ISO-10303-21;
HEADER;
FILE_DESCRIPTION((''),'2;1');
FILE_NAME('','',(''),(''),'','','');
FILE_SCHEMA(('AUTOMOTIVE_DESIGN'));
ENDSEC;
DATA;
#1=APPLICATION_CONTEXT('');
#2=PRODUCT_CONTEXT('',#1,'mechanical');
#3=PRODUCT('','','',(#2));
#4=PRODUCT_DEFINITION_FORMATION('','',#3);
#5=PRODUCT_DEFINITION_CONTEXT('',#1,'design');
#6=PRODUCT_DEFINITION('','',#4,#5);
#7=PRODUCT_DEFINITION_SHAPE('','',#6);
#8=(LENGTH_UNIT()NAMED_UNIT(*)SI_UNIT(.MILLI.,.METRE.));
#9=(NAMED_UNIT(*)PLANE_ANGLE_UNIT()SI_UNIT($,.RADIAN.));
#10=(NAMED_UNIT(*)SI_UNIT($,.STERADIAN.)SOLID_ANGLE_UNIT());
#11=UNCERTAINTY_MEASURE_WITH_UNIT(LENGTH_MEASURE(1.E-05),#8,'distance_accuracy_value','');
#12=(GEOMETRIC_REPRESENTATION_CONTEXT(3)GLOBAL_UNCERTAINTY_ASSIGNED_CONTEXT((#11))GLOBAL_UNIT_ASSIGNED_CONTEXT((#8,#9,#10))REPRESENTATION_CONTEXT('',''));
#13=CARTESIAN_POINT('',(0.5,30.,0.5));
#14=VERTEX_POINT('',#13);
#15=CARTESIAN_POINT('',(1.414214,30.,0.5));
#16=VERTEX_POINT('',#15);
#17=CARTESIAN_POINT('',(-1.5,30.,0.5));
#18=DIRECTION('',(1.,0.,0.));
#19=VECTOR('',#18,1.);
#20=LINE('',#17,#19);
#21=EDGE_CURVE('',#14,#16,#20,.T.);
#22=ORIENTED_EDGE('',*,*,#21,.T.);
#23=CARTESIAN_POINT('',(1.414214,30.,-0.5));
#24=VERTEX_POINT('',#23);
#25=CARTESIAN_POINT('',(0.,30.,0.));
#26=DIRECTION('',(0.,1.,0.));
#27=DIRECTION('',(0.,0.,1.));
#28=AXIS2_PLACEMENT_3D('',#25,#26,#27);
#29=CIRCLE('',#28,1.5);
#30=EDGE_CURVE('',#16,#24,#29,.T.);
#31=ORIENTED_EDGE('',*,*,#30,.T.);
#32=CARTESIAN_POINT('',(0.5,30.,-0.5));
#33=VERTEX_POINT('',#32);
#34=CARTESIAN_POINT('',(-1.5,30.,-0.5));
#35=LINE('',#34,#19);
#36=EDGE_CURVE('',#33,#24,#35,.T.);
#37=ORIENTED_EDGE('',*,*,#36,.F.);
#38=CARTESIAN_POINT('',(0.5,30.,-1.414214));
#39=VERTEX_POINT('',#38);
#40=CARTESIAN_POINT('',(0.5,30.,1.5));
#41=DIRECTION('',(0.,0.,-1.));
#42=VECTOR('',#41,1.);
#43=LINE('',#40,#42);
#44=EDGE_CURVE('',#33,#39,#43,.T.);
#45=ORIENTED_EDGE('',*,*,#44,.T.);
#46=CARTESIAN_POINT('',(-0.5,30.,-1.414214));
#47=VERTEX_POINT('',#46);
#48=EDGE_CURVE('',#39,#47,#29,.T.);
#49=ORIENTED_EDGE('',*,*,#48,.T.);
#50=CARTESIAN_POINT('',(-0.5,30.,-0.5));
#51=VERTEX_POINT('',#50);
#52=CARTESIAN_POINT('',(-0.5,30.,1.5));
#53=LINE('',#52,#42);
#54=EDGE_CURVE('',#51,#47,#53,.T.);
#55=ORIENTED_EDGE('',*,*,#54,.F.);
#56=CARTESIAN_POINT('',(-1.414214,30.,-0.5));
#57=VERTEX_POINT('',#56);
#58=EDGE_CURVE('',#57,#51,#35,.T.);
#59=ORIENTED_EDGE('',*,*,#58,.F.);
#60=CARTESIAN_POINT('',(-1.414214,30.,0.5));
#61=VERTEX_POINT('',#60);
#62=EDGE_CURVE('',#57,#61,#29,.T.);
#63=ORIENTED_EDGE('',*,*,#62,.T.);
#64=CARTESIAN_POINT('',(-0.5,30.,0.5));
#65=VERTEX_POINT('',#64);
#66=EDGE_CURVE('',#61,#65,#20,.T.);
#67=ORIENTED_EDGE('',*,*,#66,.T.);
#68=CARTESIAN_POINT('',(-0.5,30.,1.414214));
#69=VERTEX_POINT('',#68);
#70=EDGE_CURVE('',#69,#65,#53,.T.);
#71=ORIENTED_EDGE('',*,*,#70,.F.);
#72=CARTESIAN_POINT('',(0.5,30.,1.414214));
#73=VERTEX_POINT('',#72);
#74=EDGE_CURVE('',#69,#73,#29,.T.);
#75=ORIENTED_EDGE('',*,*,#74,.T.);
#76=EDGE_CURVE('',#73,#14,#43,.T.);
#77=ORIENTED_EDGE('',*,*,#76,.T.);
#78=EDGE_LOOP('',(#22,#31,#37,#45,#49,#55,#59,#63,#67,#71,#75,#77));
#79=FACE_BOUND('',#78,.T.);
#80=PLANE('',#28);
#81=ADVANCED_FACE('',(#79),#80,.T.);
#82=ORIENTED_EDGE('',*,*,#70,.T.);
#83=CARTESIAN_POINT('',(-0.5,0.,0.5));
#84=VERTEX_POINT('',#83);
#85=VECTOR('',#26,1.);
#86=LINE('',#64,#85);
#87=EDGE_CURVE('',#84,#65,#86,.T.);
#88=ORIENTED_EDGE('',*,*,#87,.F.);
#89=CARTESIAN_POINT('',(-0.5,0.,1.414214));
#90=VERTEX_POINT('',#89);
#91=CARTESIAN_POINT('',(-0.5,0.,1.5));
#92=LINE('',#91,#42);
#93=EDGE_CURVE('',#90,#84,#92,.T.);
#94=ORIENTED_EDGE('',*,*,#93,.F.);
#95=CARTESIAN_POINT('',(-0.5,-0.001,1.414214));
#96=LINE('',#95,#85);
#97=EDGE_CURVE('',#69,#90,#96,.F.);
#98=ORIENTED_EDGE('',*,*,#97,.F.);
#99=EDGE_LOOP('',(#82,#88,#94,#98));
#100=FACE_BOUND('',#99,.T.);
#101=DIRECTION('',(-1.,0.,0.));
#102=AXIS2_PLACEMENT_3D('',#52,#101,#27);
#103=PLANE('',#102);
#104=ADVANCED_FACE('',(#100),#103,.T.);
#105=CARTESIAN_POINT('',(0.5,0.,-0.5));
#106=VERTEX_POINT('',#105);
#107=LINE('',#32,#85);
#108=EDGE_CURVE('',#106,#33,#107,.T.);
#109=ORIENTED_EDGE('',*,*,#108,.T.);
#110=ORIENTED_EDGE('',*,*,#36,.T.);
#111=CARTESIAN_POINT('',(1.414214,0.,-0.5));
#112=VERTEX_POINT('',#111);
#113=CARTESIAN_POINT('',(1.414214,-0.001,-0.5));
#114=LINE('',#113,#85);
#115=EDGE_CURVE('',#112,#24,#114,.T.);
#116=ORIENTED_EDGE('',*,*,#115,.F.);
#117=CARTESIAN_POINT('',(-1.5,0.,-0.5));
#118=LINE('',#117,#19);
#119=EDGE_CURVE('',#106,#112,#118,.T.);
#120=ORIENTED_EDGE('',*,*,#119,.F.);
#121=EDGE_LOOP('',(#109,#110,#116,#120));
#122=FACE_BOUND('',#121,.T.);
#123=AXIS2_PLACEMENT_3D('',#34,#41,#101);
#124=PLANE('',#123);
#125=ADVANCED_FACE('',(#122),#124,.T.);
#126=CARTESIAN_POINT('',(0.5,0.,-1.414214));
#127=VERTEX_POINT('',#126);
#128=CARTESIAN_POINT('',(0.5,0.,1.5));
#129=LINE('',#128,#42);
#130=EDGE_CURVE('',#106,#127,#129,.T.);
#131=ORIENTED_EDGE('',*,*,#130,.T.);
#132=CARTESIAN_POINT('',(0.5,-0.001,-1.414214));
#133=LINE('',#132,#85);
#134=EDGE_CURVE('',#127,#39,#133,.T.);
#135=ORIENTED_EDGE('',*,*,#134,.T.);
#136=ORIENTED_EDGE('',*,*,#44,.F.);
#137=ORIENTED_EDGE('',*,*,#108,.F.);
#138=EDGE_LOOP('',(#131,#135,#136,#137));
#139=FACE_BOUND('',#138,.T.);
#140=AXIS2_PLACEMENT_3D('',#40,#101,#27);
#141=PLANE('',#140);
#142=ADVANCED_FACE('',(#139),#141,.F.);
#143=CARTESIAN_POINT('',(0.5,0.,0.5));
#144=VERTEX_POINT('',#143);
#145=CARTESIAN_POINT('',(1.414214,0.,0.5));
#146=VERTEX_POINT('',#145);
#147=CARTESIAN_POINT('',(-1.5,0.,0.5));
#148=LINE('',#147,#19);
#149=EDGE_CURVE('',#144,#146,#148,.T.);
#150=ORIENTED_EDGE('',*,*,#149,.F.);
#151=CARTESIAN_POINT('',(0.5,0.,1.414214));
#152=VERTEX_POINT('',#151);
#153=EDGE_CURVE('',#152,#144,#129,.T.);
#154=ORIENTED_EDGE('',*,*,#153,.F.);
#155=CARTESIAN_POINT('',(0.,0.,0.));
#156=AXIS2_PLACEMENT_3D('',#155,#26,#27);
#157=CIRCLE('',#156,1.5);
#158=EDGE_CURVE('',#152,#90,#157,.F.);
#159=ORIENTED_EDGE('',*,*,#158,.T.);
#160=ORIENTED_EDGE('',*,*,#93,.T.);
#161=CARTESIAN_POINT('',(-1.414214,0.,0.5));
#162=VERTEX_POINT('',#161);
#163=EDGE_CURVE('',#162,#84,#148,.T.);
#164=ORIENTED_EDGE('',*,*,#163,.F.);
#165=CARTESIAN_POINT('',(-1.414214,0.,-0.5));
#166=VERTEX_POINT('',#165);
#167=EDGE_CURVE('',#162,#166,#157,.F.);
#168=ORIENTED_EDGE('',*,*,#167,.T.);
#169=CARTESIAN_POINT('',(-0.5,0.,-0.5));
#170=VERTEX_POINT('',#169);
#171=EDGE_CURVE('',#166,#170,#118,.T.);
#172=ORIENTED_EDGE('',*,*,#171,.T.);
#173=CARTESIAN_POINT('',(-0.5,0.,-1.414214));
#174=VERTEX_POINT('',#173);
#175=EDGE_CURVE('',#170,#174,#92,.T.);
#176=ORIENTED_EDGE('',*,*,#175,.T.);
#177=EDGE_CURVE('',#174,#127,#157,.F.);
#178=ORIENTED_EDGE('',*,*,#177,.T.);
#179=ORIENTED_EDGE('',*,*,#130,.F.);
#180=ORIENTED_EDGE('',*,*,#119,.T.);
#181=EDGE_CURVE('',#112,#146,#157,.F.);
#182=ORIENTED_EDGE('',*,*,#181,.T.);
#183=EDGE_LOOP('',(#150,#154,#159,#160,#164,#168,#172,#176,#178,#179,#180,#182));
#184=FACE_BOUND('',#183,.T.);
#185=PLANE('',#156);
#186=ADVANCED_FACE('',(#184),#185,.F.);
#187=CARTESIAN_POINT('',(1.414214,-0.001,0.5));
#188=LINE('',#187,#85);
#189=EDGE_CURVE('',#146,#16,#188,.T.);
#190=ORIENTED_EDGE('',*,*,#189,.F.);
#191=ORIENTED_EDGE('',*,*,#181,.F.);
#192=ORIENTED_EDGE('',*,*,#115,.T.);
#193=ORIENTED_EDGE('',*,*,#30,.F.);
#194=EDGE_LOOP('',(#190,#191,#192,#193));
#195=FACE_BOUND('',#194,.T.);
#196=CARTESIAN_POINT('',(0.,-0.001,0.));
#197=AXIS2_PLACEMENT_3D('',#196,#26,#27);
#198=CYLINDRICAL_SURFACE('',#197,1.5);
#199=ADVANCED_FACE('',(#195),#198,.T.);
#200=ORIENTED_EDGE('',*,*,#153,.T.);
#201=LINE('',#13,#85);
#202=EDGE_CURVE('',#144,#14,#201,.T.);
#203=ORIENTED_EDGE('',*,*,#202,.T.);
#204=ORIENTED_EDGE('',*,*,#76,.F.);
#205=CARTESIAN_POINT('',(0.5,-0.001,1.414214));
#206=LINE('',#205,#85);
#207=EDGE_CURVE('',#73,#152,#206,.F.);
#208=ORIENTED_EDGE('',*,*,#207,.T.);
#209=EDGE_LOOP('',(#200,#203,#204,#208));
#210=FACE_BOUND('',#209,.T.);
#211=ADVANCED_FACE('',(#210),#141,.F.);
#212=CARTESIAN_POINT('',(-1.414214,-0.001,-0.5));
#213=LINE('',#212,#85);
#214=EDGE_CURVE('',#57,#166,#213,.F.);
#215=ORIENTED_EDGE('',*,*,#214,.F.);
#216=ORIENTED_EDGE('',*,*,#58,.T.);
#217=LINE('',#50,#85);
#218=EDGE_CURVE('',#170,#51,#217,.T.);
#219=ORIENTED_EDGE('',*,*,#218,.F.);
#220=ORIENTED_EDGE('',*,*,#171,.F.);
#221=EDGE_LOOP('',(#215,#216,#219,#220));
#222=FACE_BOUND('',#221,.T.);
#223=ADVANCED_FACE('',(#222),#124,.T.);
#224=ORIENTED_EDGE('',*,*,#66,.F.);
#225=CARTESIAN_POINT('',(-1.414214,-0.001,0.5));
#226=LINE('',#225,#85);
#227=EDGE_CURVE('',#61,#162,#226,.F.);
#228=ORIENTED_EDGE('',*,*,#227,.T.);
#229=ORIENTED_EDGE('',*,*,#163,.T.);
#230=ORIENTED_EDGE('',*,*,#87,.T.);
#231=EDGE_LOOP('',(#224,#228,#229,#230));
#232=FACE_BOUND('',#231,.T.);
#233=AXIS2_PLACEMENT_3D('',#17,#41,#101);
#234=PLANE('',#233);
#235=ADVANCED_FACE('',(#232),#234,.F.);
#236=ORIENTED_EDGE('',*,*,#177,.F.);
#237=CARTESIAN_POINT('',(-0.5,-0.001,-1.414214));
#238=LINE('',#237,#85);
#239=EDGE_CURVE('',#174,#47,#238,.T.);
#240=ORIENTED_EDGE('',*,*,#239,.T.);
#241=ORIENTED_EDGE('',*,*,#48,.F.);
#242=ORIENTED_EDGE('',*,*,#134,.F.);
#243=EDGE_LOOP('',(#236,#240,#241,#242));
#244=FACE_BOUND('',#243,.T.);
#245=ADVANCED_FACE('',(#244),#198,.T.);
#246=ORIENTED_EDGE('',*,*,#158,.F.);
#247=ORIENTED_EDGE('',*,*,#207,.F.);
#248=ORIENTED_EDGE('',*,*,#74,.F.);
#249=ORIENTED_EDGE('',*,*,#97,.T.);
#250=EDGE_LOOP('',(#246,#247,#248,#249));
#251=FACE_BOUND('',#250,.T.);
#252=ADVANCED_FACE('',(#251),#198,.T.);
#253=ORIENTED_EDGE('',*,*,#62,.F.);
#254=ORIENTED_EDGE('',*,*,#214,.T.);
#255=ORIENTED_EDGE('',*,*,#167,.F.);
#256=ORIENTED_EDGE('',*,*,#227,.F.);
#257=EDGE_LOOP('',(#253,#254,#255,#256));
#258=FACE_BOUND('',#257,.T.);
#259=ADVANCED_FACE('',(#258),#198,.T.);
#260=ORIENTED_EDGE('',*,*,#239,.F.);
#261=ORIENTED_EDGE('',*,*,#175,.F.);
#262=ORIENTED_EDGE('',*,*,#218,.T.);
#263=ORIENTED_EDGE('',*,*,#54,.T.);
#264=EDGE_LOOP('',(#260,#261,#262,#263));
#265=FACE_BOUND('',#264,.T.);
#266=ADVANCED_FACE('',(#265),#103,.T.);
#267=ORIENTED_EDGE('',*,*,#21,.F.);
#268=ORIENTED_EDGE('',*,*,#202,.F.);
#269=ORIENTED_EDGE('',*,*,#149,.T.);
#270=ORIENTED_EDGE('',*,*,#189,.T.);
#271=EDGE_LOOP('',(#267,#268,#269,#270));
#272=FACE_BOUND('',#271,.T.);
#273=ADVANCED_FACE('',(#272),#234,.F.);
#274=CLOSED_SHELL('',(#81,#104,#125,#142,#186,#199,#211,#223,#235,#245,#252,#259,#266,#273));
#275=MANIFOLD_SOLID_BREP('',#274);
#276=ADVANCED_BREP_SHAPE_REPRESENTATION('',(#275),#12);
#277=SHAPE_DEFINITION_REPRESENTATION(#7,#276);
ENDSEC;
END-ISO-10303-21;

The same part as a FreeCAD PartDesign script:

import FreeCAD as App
import Part
import Sketcher
from FreeCAD import Vector

doc = App.newDocument("Part")
body = doc.addObject("PartDesign::Body", "Body")

# Sketch on XZ plane
sketch1 = body.newObject("Sketcher::SketchObject", "Sketch")
sketch1.AttachmentSupport = (doc.getObject("XZ_Plane"), [""])
sketch1.MapMode = "FlatFace"
sketch1.addGeometry(Part.LineSegment(Vector(-1.5, -0.5, 0), Vector(-1.5, 0.5, 0)), False)
sketch1.addGeometry(Part.LineSegment(Vector(-1.5, 0.5, 0), Vector(-0.5, 0.5, 0)), False)
sketch1.addGeometry(Part.LineSegment(Vector(-0.5, 0.5, 0), Vector(-0.5, 1.5, 0)), False)
sketch1.addGeometry(Part.LineSegment(Vector(-0.5, 1.5, 0), Vector(0.5, 1.5, 0)), False)
sketch1.addGeometry(Part.LineSegment(Vector(0.5, 1.5, 0), Vector(0.5, 0.5, 0)), False)
sketch1.addGeometry(Part.LineSegment(Vector(0.5, 0.5, 0), Vector(1.5, 0.5, 0)), False)
sketch1.addGeometry(Part.LineSegment(Vector(1.5, 0.5, 0), Vector(1.5, -0.5, 0)), False)
sketch1.addGeometry(Part.LineSegment(Vector(1.5, -0.5, 0), Vector(0.5, -0.5, 0)), False)
sketch1.addGeometry(Part.LineSegment(Vector(0.5, -0.5, 0), Vector(0.5, -1.5, 0)), False)
sketch1.addGeometry(Part.LineSegment(Vector(0.5, -1.5, 0), Vector(-0.5, -1.5, 0)), False)
sketch1.addGeometry(Part.LineSegment(Vector(-0.5, -1.5, 0), Vector(-0.5, -0.5, 0)), False)
sketch1.addGeometry(Part.LineSegment(Vector(-0.5, -0.5, 0), Vector(-1.5, -0.5, 0)), False)
sketch1.addConstraint(Sketcher.Constraint("Coincident", 0, 2, 1, 1))
sketch1.addConstraint(Sketcher.Constraint("Coincident", 1, 2, 2, 1))
sketch1.addConstraint(Sketcher.Constraint("Coincident", 2, 2, 3, 1))
sketch1.addConstraint(Sketcher.Constraint("Coincident", 3, 2, 4, 1))
sketch1.addConstraint(Sketcher.Constraint("Coincident", 4, 2, 5, 1))
sketch1.addConstraint(Sketcher.Constraint("Coincident", 5, 2, 6, 1))
sketch1.addConstraint(Sketcher.Constraint("Coincident", 6, 2, 7, 1))
sketch1.addConstraint(Sketcher.Constraint("Coincident", 7, 2, 8, 1))
sketch1.addConstraint(Sketcher.Constraint("Coincident", 8, 2, 9, 1))
sketch1.addConstraint(Sketcher.Constraint("Coincident", 9, 2, 10, 1))
sketch1.addConstraint(Sketcher.Constraint("Coincident", 10, 2, 11, 1))
sketch1.addConstraint(Sketcher.Constraint("Coincident", 11, 2, 0, 1))
sketch1.addConstraint(Sketcher.Constraint("Vertical", 0))
sketch1.addConstraint(Sketcher.Constraint("Horizontal", 1))
sketch1.addConstraint(Sketcher.Constraint("Vertical", 2))
sketch1.addConstraint(Sketcher.Constraint("Horizontal", 3))
sketch1.addConstraint(Sketcher.Constraint("Vertical", 4))
sketch1.addConstraint(Sketcher.Constraint("Horizontal", 5))
sketch1.addConstraint(Sketcher.Constraint("Vertical", 6))
sketch1.addConstraint(Sketcher.Constraint("Horizontal", 7))
sketch1.addConstraint(Sketcher.Constraint("Vertical", 8))
sketch1.addConstraint(Sketcher.Constraint("Horizontal", 9))
sketch1.addConstraint(Sketcher.Constraint("Vertical", 10))
sketch1.addConstraint(Sketcher.Constraint("Horizontal", 11))
sketch1.addConstraint(Sketcher.Constraint("Symmetric", 0, 2, 6, 2, -1, 1))
sketch1.addConstraint(Sketcher.Constraint("Symmetric", 2, 2, 8, 2, -1, 1))
sketch1.addConstraint(Sketcher.Constraint("Symmetric", 4, 2, 10, 2, -1, 1))
sketch1.addConstraint(Sketcher.Constraint("Symmetric", 1, 2, 4, 2, -2))
sketch1.addConstraint(Sketcher.Constraint("Equal", 1, 3))
sketch1.addConstraint(Sketcher.Constraint("Equal", 11, 0))
sketch1.addConstraint(Sketcher.Constraint("Equal", 0, 2))
sketch1.addConstraint(Sketcher.Constraint("DistanceX", 1, 1, 1, 2, 1.0))
pad1 = body.newObject("PartDesign::Pad", "Pad")
pad1.Profile = sketch1
pad1.Length = 30
pad1.Reversed = True

# Sketch on XZ plane
sketch2 = body.newObject("Sketcher::SketchObject", "Sketch001")
sketch2.AttachmentSupport = (doc.getObject("XZ_Plane"), [""])
sketch2.MapMode = "FlatFace"
sketch2.AttachmentOffset = App.Placement(Vector(0, 0, -30), App.Rotation())
sketch2.addGeometry(Part.LineSegment(Vector(-5.53, -5.53, 0), Vector(-5.53, 5.53, 0)), False)
sketch2.addGeometry(Part.LineSegment(Vector(-5.53, 5.53, 0), Vector(5.53, 5.53, 0)), False)
sketch2.addGeometry(Part.LineSegment(Vector(5.53, 5.53, 0), Vector(5.53, -5.53, 0)), False)
sketch2.addGeometry(Part.LineSegment(Vector(5.53, -5.53, 0), Vector(-5.53, -5.53, 0)), False)
sketch2.addGeometry(Part.Circle(Vector(0, 0, 0), Vector(0, 0, 1), 1.5), False)
sketch2.addConstraint(Sketcher.Constraint("Coincident", 0, 2, 1, 1))
sketch2.addConstraint(Sketcher.Constraint("Coincident", 1, 2, 2, 1))
sketch2.addConstraint(Sketcher.Constraint("Coincident", 2, 2, 3, 1))
sketch2.addConstraint(Sketcher.Constraint("Coincident", 3, 2, 0, 1))
sketch2.addConstraint(Sketcher.Constraint("Vertical", 0))
sketch2.addConstraint(Sketcher.Constraint("Horizontal", 1))
sketch2.addConstraint(Sketcher.Constraint("Vertical", 2))
sketch2.addConstraint(Sketcher.Constraint("Horizontal", 3))
sketch2.addConstraint(Sketcher.Constraint("Coincident", 4, 3, -1, 1))
sketch2.addConstraint(Sketcher.Constraint("Symmetric", 0, 2, 2, 2, -1, 1))
sketch2.addConstraint(Sketcher.Constraint("Equal", 3, 0))
sketch2.addConstraint(Sketcher.Constraint("Diameter", 4, 3.0))
sketch2.addConstraint(Sketcher.Constraint("DistanceX", 1, 1, 1, 2, 11.06))
pocket1 = body.newObject("PartDesign::Pocket", "Pocket")
pocket1.Profile = sketch2
pocket1.Length = 30
pocket1.Reversed = True

doc.recompute()
